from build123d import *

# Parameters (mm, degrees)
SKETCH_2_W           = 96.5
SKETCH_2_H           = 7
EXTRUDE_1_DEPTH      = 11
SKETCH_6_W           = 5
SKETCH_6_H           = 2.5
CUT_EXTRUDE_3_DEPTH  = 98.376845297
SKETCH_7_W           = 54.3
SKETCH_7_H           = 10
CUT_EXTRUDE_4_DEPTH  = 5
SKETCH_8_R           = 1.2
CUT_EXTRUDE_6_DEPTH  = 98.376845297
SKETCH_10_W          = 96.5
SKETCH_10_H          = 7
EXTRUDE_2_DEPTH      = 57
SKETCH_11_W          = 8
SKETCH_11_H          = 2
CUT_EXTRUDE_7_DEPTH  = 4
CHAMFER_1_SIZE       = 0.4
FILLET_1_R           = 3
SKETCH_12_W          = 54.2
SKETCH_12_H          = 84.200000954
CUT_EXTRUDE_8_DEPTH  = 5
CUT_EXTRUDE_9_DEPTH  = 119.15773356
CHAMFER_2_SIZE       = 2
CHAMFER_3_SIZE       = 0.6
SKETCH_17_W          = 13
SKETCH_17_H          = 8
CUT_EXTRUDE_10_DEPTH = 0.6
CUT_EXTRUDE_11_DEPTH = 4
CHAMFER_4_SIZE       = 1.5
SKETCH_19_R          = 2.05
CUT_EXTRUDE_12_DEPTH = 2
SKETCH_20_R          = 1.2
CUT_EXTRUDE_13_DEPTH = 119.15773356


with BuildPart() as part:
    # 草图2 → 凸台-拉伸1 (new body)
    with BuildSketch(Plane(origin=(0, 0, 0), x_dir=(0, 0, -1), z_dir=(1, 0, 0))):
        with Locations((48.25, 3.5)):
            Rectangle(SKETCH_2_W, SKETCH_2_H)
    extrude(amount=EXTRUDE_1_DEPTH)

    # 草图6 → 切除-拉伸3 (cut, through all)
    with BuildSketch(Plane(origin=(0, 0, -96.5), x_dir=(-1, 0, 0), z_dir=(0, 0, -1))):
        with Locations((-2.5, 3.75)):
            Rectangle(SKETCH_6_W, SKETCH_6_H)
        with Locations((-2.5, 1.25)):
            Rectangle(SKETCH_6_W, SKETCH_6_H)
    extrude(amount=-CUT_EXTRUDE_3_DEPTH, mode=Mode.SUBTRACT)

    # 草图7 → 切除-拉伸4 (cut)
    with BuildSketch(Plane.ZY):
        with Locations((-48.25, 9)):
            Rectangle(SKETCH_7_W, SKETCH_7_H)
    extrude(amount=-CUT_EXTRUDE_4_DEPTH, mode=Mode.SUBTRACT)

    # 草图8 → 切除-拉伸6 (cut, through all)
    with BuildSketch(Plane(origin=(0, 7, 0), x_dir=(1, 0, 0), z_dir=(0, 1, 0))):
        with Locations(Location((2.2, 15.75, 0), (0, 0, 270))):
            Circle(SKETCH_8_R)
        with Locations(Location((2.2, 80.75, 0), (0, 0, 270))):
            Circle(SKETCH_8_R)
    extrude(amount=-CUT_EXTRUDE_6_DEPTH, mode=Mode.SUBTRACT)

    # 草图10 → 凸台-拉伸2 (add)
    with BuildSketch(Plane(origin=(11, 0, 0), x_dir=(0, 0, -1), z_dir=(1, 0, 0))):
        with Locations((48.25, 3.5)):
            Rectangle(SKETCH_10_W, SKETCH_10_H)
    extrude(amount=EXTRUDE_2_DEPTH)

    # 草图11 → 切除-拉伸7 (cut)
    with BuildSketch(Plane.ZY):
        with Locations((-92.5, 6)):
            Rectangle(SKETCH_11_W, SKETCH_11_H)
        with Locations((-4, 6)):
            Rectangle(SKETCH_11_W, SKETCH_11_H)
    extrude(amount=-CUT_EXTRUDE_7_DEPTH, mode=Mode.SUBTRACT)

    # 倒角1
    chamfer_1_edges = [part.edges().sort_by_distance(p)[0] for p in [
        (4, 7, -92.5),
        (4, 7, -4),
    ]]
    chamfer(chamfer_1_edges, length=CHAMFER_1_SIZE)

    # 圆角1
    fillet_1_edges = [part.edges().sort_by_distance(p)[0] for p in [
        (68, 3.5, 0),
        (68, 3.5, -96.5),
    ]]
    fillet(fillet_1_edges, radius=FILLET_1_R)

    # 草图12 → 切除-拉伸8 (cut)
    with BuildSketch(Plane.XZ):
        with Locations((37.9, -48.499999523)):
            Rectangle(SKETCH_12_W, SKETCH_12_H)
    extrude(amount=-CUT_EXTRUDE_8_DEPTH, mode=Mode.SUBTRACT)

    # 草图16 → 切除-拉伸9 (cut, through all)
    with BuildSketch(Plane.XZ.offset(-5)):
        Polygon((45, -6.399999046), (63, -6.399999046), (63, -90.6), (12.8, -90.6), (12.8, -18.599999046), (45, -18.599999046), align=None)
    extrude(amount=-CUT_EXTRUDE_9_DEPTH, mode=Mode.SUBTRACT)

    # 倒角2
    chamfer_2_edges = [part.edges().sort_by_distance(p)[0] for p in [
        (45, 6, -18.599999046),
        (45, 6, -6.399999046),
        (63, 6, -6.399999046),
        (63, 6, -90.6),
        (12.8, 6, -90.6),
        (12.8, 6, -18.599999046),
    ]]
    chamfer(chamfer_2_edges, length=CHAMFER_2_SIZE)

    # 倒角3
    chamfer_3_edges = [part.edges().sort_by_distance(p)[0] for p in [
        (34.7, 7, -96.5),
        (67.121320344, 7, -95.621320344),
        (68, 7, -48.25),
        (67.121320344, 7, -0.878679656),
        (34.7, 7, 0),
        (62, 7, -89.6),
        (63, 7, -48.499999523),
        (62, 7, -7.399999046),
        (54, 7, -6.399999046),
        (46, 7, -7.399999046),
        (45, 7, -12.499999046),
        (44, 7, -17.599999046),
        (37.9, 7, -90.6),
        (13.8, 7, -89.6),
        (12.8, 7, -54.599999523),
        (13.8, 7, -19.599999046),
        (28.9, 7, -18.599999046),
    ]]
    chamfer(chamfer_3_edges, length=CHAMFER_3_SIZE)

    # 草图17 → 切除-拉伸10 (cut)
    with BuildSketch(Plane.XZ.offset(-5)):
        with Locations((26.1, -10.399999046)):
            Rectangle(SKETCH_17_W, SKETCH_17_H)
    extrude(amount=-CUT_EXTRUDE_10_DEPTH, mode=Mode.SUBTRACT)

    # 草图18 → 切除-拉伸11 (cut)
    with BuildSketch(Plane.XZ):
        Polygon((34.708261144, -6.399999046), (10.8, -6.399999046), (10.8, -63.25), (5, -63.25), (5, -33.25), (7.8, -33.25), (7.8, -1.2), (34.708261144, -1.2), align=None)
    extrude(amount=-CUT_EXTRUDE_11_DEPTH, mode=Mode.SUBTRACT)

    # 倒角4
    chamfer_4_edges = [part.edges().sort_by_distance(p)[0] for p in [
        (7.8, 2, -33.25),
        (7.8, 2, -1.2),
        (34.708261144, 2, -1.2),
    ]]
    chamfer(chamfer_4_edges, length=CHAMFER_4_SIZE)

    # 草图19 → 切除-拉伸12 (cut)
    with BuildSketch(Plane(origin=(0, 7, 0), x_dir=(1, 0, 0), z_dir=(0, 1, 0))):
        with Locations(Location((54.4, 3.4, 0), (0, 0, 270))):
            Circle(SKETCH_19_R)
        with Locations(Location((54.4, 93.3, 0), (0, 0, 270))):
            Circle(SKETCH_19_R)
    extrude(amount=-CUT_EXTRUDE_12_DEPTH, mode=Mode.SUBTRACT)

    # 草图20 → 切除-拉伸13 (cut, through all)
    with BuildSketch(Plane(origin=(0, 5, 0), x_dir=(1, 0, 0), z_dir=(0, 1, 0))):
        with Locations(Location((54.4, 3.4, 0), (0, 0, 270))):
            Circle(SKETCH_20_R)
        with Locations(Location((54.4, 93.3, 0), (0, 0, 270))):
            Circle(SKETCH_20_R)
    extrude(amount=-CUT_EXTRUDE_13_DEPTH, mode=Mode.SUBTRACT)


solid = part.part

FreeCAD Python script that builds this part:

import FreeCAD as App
import Part
import Sketcher
from FreeCAD import Vector
Q = App.Units.Quantity


def edges_at(feature, points):
    """Names of the edges that pass closest to the given points."""
    edges = feature.Shape.Edges
    near = lambda p: min(range(len(edges)), key=lambda i: edges[i].distToShape(Part.Vertex(*p))[0])
    return sorted({f"Edge{near(p) + 1}" for p in points})


def add_polygon(sketch, points):
    """Adds a closed chain of lines whose ends are joined by coincident constraints."""
    first, n = sketch.GeometryCount, len(points)
    for a, b in zip(points, points[1:] + points[:1]):
        sketch.addGeometry(Part.LineSegment(App.Vector(*a, 0), App.Vector(*b, 0)), False)
    for i in range(n):
        sketch.addConstraint(Sketcher.Constraint("Coincident", first + i, 2, first + (i + 1) % n, 1))

doc = App.newDocument("Part")
params = doc.addObject("Spreadsheet::Sheet", "Params")
for row, (alias, value) in enumerate([
    ("sketch1_width", "7 mm"),
    ("sketch1_height", "96.5 mm"),
    ("pad1_length", "11 mm"),
    ("sketch2_width", "5 mm"),
    ("sketch3_width", "10 mm"),
    ("sketch3_height", "54.3 mm"),
    ("pocket2_length", "5 mm"),
    ("sketch4_diameter", "2.4 mm"),
    ("sketch5_width", "7 mm"),
    ("sketch5_height", "96.5 mm"),
    ("pad2_length", "57 mm"),
    ("sketch6_width", "2 mm"),
    ("sketch6_height", "8 mm"),
    ("pocket4_length", "4 mm"),
    ("chamfer_size", "0.4 mm"),
    ("fillet_radius", "3 mm"),
    ("sketch7_width", "54.2 mm"),
    ("sketch7_height", "84.200001 mm"),
    ("pocket5_length", "5 mm"),
    ("sketch8_width", "18 mm"),
    ("sketch8_height", "72.000001 mm"),
    ("sketch8_width2", "32.2 mm"),
    ("sketch8_height2", "12.2 mm"),
    ("chamfer2_size", "2 mm"),
    ("chamfer3_size", "0.6 mm"),
    ("sketch9_width", "13 mm"),
    ("sketch9_height", "8 mm"),
    ("pocket7_length", "0.6 mm"),
    ("sketch10_height", "30 mm"),
    ("sketch10_width", "2.8 mm"),
    ("sketch10_width2", "5.8 mm"),
    ("sketch10_height2", "5.199999 mm"),
    ("sketch10_height3", "32.05 mm"),
    ("pocket8_length", "4 mm"),
    ("chamfer4_size", "1.5 mm"),
    ("sketch11_diameter", "4.1 mm"),
    ("pocket9_length", "2 mm"),
    ("sketch12_diameter", "2.4 mm"),
], start=1):
    params.set(f"A{row}", alias)
    params.set(f"B{row}", "=" + value)
    params.setAlias(f"B{row}", alias)

body = doc.addObject("PartDesign::Body", "Body")

sketch1 = doc.addObject("Sketcher::SketchObject", "Sketch")
body.addObject(sketch1)
sketch1.AttachmentSupport = (doc.YZ_Plane, [""])
sketch1.MapMode = "FlatFace"
add_polygon(sketch1, [(7, 0), (0, 0), (0, -96), (7, -96)])
sketch1.addConstraint(Sketcher.Constraint("Horizontal", 0))
sketch1.addConstraint(Sketcher.Constraint("Vertical", 1))
sketch1.addConstraint(Sketcher.Constraint("Horizontal", 2))
sketch1.addConstraint(Sketcher.Constraint("Vertical", 3))
sketch1.addConstraint(Sketcher.Constraint("Coincident", 0, 2, -1, 1))
sketch1.addConstraint(Sketcher.Constraint("DistanceX", 0, 2, 0, 1, Q("7 mm")))
sketch1.addConstraint(Sketcher.Constraint("DistanceY", 1, 2, 1, 1, Q("96.5 mm")))
sketch1.setExpression("Constraints[9]", "Params.sketch1_width")
sketch1.setExpression("Constraints[10]", "Params.sketch1_height")
pad1 = doc.addObject("PartDesign::Pad", "Pad")
body.addObject(pad1)
pad1.Profile = sketch1
pad1.setExpression("Length", "Params.pad1_length")

sketch2 = doc.addObject("Sketcher::SketchObject", "Sketch001")
body.addObject(sketch2)
sketch2.AttachmentSupport = (doc.XY_Plane, [""])
sketch2.MapMode = "FlatFace"
sketch2.AttachmentOffset = App.Placement(Vector(0, 0, -96.5), App.Rotation())
add_polygon(sketch2, [(5, 5), (5, 0), (0, 0), (0, 5)])
sketch2.addConstraint(Sketcher.Constraint("Vertical", 0))
sketch2.addConstraint(Sketcher.Constraint("Horizontal", 1))
sketch2.addConstraint(Sketcher.Constraint("Vertical", 2))
sketch2.addConstraint(Sketcher.Constraint("Horizontal", 3))
sketch2.addConstraint(Sketcher.Constraint("Coincident", 1, 2, -1, 1))
sketch2.addConstraint(Sketcher.Constraint("Equal", 3, 0))
sketch2.addConstraint(Sketcher.Constraint("DistanceX", 1, 2, 1, 1, Q("5 mm")))
sketch2.setExpression("Constraints[10]", "Params.sketch2_width")
pocket1 = doc.addObject("PartDesign::Pocket", "Pocket")
body.addObject(pocket1)
pocket1.Profile = sketch2
pocket1.Type = "ThroughAll"
pocket1.Reversed = True

sketch3 = doc.addObject("Sketcher::SketchObject", "Sketch002")
body.addObject(sketch3)
sketch3.AttachmentSupport = (doc.YZ_Plane, [""])
sketch3.MapMode = "FlatFace"
add_polygon(sketch3, [(14, -75), (4, -75), (4, -21), (14, -21)])
sketch3.addConstraint(Sketcher.Constraint("Horizontal", 0))
sketch3.addConstraint(Sketcher.Constraint("Vertical", 1))
sketch3.addConstraint(Sketcher.Constraint("Horizontal", 2))
sketch3.addConstraint(Sketcher.Constraint("Vertical", 3))
sketch3.addConstraint(Sketcher.Constraint("DistanceX", 0, 2, 0, 1, Q("10 mm")))
sketch3.addConstraint(Sketcher.Constraint("DistanceY", 1, 1, 1, 2, Q("54.3 mm")))
sketch3.addConstraint(Sketcher.Constraint("DistanceX", -1, 1, 0, 2, Q("4 mm")))
sketch3.addConstraint(Sketcher.Constraint("DistanceY", 0, 2, -1, 1, Q("75.4 mm")))
sketch3.setExpression("Constraints[8]", "Params.sketch3_width")
sketch3.setExpression("Constraints[9]", "Params.sketch3_height")
pocket2 = doc.addObject("PartDesign::Pocket", "Pocket001")
body.addObject(pocket2)
pocket2.Profile = sketch3
pocket2.setExpression("Length", "Params.pocket2_length")
pocket2.Reversed = True

sketch4 = doc.addObject("Sketcher::SketchObject", "Sketch003")
body.addObject(sketch4)
sketch4.AttachmentSupport = (doc.XZ_Plane, [""])
sketch4.MapMode = "FlatFace"
sketch4.AttachmentOffset = App.Placement(Vector(0, 0, -7), App.Rotation())
sketch4.addGeometry(Part.Circle(Vector(2.2, -15.8, 0), Vector(0, 0, 1), 1.2), False)
sketch4.addGeometry(Part.Circle(Vector(2.2, -80.8, 0), Vector(0, 0, 1), 1.2), False)
sketch4.addConstraint(Sketcher.Constraint("Equal", 0, 1))
sketch4.addConstraint(Sketcher.Constraint("Vertical", 0, 3, 1, 3))
sketch4.addConstraint(Sketcher.Constraint("Diameter", 0, Q("2.4 mm")))
sketch4.addConstraint(Sketcher.Constraint("DistanceY", 1, 3, 0, 3, Q("65 mm")))
sketch4.addConstraint(Sketcher.Constraint("DistanceX", -1, 1, 0, 3, Q("2.2 mm")))
sketch4.addConstraint(Sketcher.Constraint("DistanceY", 0, 3, -1, 1, Q("15.75 mm")))
sketch4.setExpression("Constraints[2]", "Params.sketch4_diameter")
pocket3 = doc.addObject("PartDesign::Pocket", "Pocket002")
body.addObject(pocket3)
pocket3.Profile = sketch4
pocket3.Type = "ThroughAll"
pocket3.Reversed = True

sketch5 = doc.addObject("Sketcher::SketchObject", "Sketch004")
body.addObject(sketch5)
sketch5.AttachmentSupport = (doc.YZ_Plane, [""])
sketch5.MapMode = "FlatFace"
sketch5.AttachmentOffset = App.Placement(Vector(0, 0, 11), App.Rotation())
add_polygon(sketch5, [(7, 0), (0, 0), (0, -96), (7, -96)])
sketch5.addConstraint(Sketcher.Constraint("Horizontal", 0))
sketch5.addConstraint(Sketcher.Constraint("Vertical", 1))
sketch5.addConstraint(Sketcher.Constraint("Horizontal", 2))
sketch5.addConstraint(Sketcher.Constraint("Vertical", 3))
sketch5.addConstraint(Sketcher.Constraint("Coincident", 0, 2, -1, 1))
sketch5.addConstraint(Sketcher.Constraint("DistanceX", 0, 2, 0, 1, Q("7 mm")))
sketch5.addConstraint(Sketcher.Constraint("DistanceY", 1, 2, 1, 1, Q("96.5 mm")))
sketch5.setExpression("Constraints[9]", "Params.sketch5_width")
sketch5.setExpression("Constraints[10]", "Params.sketch5_height")
pad2 = doc.addObject("PartDesign::Pad", "Pad001")
body.addObject(pad2)
pad2.Profile = sketch5
pad2.setExpression("Length", "Params.pad2_length")

sketch6 = doc.addObject("Sketcher::SketchObject", "Sketch005")
body.addObject(sketch6)
sketch6.AttachmentSupport = (doc.YZ_Plane, [""])
sketch6.MapMode = "FlatFace"
add_polygon(sketch6, [(7, -96.5), (5, -96.5), (5, -88.5), (7, -88.5)])
add_polygon(sketch6, [(7, -8), (5, -8), (5, 0), (7, 0)])
sketch6.addConstraint(Sketcher.Constraint("Horizontal", 0))
sketch6.addConstraint(Sketcher.Constraint("Vertical", 1))
sketch6.addConstraint(Sketcher.Constraint("Horizontal", 2))
sketch6.addConstraint(Sketcher.Constraint("Vertical", 3))
sketch6.addConstraint(Sketcher.Constraint("Horizontal", 4))
sketch6.addConstraint(Sketcher.Constraint("Vertical", 5))
sketch6.addConstraint(Sketcher.Constraint("Horizontal", 6))
sketch6.addConstraint(Sketcher.Constraint("Vertical", 7))
sketch6.addConstraint(Sketcher.Constraint("PointOnObject", 5, 2, -1))
sketch6.addConstraint(Sketcher.Constraint("Vertical", 1, 2, 4, 2))
sketch6.addConstraint(Sketcher.Constraint("Vertical", 3, 2, 6, 2))
sketch6.addConstraint(Sketcher.Constraint("Equal", 3, 5))
sketch6.addConstraint(Sketcher.Constraint("DistanceX", 0, 2, 0, 1, Q("2 mm")))
sketch6.addConstraint(Sketcher.Constraint("DistanceY", 1, 1, 1, 2, Q("8 mm")))
sketch6.addConstraint(Sketcher.Constraint("DistanceX", -1, 1, 0, 2, Q("5 mm")))
sketch6.addConstraint(Sketcher.Constraint("DistanceY", 0, 2, -1, 1, Q("96.5 mm")))
sketch6.setExpression("Constraints[20]", "Params.sketch6_width")
sketch6.setExpression("Constraints[21]", "Params.sketch6_height")
pocket4 = doc.addObject("PartDesign::Pocket", "Pocket003")
body.addObject(pocket4)
pocket4.Profile = sketch6
pocket4.setExpression("Length", "Params.pocket4_length")
pocket4.Reversed = True
doc.recompute()

chamfer = doc.addObject("PartDesign::Chamfer", "Chamfer")
body.addObject(chamfer)
chamfer.Base = (pocket4, edges_at(pocket4, [(4, 7, -92.5), (4, 7, -4)]))
chamfer.setExpression("Size", "Params.chamfer_size")
doc.recompute()

fillet = doc.addObject("PartDesign::Fillet", "Fillet")
body.addObject(fillet)
fillet.Base = (chamfer, edges_at(chamfer, [(68, 3.5, 0), (68, 3.5, -96.5)]))
fillet.setExpression("Radius", "Params.fillet_radius")

sketch7 = doc.addObject("Sketcher::SketchObject", "Sketch006")
body.addObject(sketch7)
sketch7.AttachmentSupport = (doc.XZ_Plane, [""])
sketch7.MapMode = "FlatFace"
add_polygon(sketch7, [(11, -6), (11, -91), (65, -91), (65, -6)])
sketch7.addConstraint(Sketcher.Constraint("Vertical", 0))
sketch7.addConstraint(Sketcher.Constraint("Horizontal", 1))
sketch7.addConstraint(Sketcher.Constraint("Vertical", 2))
sketch7.addConstraint(Sketcher.Constraint("Horizontal", 3))
sketch7.addConstraint(Sketcher.Constraint("DistanceX", 1, 1, 1, 2, Q("54.2 mm")))
sketch7.addConstraint(Sketcher.Constraint("DistanceY", 0, 2, 0, 1, Q("84.200001 mm")))
sketch7.addConstraint(Sketcher.Constraint("DistanceX", -1, 1, 1, 2, Q("65 mm")))
sketch7.addConstraint(Sketcher.Constraint("DistanceY", 0, 2, -1, 1, Q("90.6 mm")))
sketch7.setExpression("Constraints[8]", "Params.sketch7_width")
sketch7.setExpression("Constraints[9]", "Params.sketch7_height")
pocket5 = doc.addObject("PartDesign::Pocket", "Pocket004")
body.addObject(pocket5)
pocket5.Profile = sketch7
pocket5.setExpression("Length", "Params.pocket5_length")

sketch8 = doc.addObject("Sketcher::SketchObject", "Sketch007")
body.addObject(sketch8)
sketch8.AttachmentSupport = (doc.XZ_Plane, [""])
sketch8.MapMode = "FlatFace"
sketch8.AttachmentOffset = App.Placement(Vector(0, 0, -5), App.Rotation())
add_polygon(sketch8, [(63, -6), (45, -6), (45, -19), (13, -19), (13, -91), (63, -91)])
sketch8.addConstraint(Sketcher.Constraint("Horizontal", 0))
sketch8.addConstraint(Sketcher.Constraint("Vertical", 1))
sketch8.addConstraint(Sketcher.Constraint("Horizontal", 2))
sketch8.addConstraint(Sketcher.Constraint("Vertical", 3))
sketch8.addConstraint(Sketcher.Constraint("Horizontal", 4))
sketch8.addConstraint(Sketcher.Constraint("Vertical", 5))
sketch8.addConstraint(Sketcher.Constraint("DistanceX", 0, 2, 0, 1, Q("18 mm")))
sketch8.addConstraint(Sketcher.Constraint("DistanceY", 3, 2, 3, 1, Q("72.000001 mm")))
sketch8.addConstraint(Sketcher.Constraint("DistanceX", 2, 2, 2, 1, Q("32.2 mm")))
sketch8.addConstraint(Sketcher.Constraint("DistanceY", 1, 2, 1, 1, Q("12.2 mm")))
sketch8.addConstraint(Sketcher.Constraint("DistanceX", -1, 1, 0, 2, Q("45 mm")))
sketch8.addConstraint(Sketcher.Constraint("DistanceY", 0, 2, -1, 1, Q("6.399999 mm")))
sketch8.setExpression("Constraints[12]", "Params.sketch8_width")
sketch8.setExpression("Constraints[13]", "Params.sketch8_height")
sketch8.setExpression("Constraints[14]", "Params.sketch8_width2")
sketch8.setExpression("Constraints[15]", "Params.sketch8_height2")
pocket6 = doc.addObject("PartDesign::Pocket", "Pocket005")
body.addObject(pocket6)
pocket6.Profile = sketch8
pocket6.Type = "ThroughAll"
doc.recompute()

chamfer2 = doc.addObject("PartDesign::Chamfer", "Chamfer001")
body.addObject(chamfer2)
chamfer2.Base = (pocket6, edges_at(pocket6, [
    (45, 6, -18.6),
    (45, 6, -6.4),
    (63, 6, -6.4),
    (63, 6, -90.6),
    (12.8, 6, -90.6),
    (12.8, 6, -18.6),
]))
chamfer2.setExpression("Size", "Params.chamfer2_size")
doc.recompute()

chamfer3 = doc.addObject("PartDesign::Chamfer", "Chamfer002")
body.addObject(chamfer3)
chamfer3.Base = (chamfer2, edges_at(chamfer2, [
    (34.7, 7, -96.5),
    (67.121, 7, -95.621),
    (68, 7, -48.25),
    (67.121, 7, -0.879),
    (34.7, 7, 0),
    (62, 7, -89.6),
    (63, 7, -48.5),
    (62, 7, -7.4),
    (54, 7, -6.4),
    (46, 7, -7.4),
    (45, 7, -12.5),
    (44, 7, -17.6),
    (37.9, 7, -90.6),
    (13.8, 7, -89.6),
    (12.8, 7, -54.6),
    (13.8, 7, -19.6),
    (28.9, 7, -18.6),
]))
chamfer3.setExpression("Size", "Params.chamfer3_size")

sketch9 = doc.addObject("Sketcher::SketchObject", "Sketch008")
body.addObject(sketch9)
sketch9.AttachmentSupport = (doc.XZ_Plane, [""])
sketch9.MapMode = "FlatFace"
sketch9.AttachmentOffset = App.Placement(Vector(0, 0, -5), App.Rotation())
add_polygon(sketch9, [(20, -6), (20, -14), (33, -14), (33, -6)])
sketch9.addConstraint(Sketcher.Constraint("Vertical", 0))
sketch9.addConstraint(Sketcher.Constraint("Horizontal", 1))
sketch9.addConstraint(Sketcher.Constraint("Vertical", 2))
sketch9.addConstraint(Sketcher.Constraint("Horizontal", 3))
sketch9.addConstraint(Sketcher.Constraint("DistanceX", 1, 1, 1, 2, Q("13 mm")))
sketch9.addConstraint(Sketcher.Constraint("DistanceY", 0, 2, 0, 1, Q("8 mm")))
sketch9.addConstraint(Sketcher.Constraint("DistanceX", -1, 1, 0, 2, Q("19.6 mm")))
sketch9.addConstraint(Sketcher.Constraint("DistanceY", 0, 2, -1, 1, Q("14.399999 mm")))
sketch9.setExpression("Constraints[8]", "Params.sketch9_width")
sketch9.setExpression("Constraints[9]", "Params.sketch9_height")
pocket7 = doc.addObject("PartDesign::Pocket", "Pocket006")
body.addObject(pocket7)
pocket7.Profile = sketch9
pocket7.setExpression("Length", "Params.pocket7_length")

sketch10 = doc.addObject("Sketcher::SketchObject", "Sketch009")
body.addObject(sketch10)
sketch10.AttachmentSupport = (doc.XZ_Plane, [""])
sketch10.MapMode = "FlatFace"
add_polygon(sketch10, [(10.8, -6.4), (34.7, -6.4), (34.7, -1.2), (7.8, -1.2), (7.8, -33.2), (5, -33.2), (5, -63.2), (10.8, -63.2)])
sketch10.addConstraint(Sketcher.Constraint("Horizontal", 0))
sketch10.addConstraint(Sketcher.Constraint("Vertical", 1))
sketch10.addConstraint(Sketcher.Constraint("Horizontal", 2))
sketch10.addConstraint(Sketcher.Constraint("Vertical", 3))
sketch10.addConstraint(Sketcher.Constraint("Horizontal", 4))
sketch10.addConstraint(Sketcher.Constraint("Vertical", 5))
sketch10.addConstraint(Sketcher.Constraint("Horizontal", 6))
sketch10.addConstraint(Sketcher.Constraint("Vertical", 7))
sketch10.addConstraint(Sketcher.Constraint("DistanceY", 5, 2, 5, 1, Q("30 mm")))
sketch10.addConstraint(Sketcher.Constraint("DistanceX", 4, 2, 4, 1, Q("2.8 mm")))
sketch10.addConstraint(Sketcher.Constraint("DistanceX", 6, 1, 6, 2, Q("5.8 mm")))
sketch10.addConstraint(Sketcher.Constraint("DistanceY", 1, 1, 1, 2, Q("5.199999 mm")))
sketch10.addConstraint(Sketcher.Constraint("DistanceX", -1, 1, 4, 2, Q("5 mm")))
sketch10.addConstraint(Sketcher.Constraint("DistanceY", 3, 2, 3, 1, Q("32.05 mm")))
sketch10.addConstraint(Sketcher.Constraint("DistanceY", 0, 2, -1, 1, Q("6.399999 mm")))
sketch10.addConstraint(Sketcher.Constraint("DistanceX", 0, 1, 0, 2, Q("23.908261 mm")))
sketch10.setExpression("Constraints[16]", "Params.sketch10_height")
sketch10.setExpression("Constraints[17]", "Params.sketch10_width")
sketch10.setExpression("Constraints[18]", "Params.sketch10_width2")
sketch10.setExpression("Constraints[19]", "Params.sketch10_height2")
sketch10.setExpression("Constraints[21]", "Params.sketch10_height3")
pocket8 = doc.addObject("PartDesign::Pocket", "Pocket007")
body.addObject(pocket8)
pocket8.Profile = sketch10
pocket8.setExpression("Length", "Params.pocket8_length")
doc.recompute()

chamfer4 = doc.addObject("PartDesign::Chamfer", "Chamfer003")
body.addObject(chamfer4)
chamfer4.Base = (pocket8, edges_at(pocket8, [(7.8, 2, -33.25), (7.8, 2, -1.2), (34.708, 2, -1.2)]))
chamfer4.setExpression("Size", "Params.chamfer4_size")

sketch11 = doc.addObject("Sketcher::SketchObject", "Sketch010")
body.addObject(sketch11)
sketch11.AttachmentSupport = (doc.XZ_Plane, [""])
sketch11.MapMode = "FlatFace"
sketch11.AttachmentOffset = App.Placement(Vector(0, 0, -7), App.Rotation())
sketch11.addGeometry(Part.Circle(Vector(54.4, -3.4, 0), Vector(0, 0, 1), 2), False)
sketch11.addGeometry(Part.Circle(Vector(54.4, -93.3, 0), Vector(0, 0, 1), 2), False)
sketch11.addConstraint(Sketcher.Constraint("Equal", 0, 1))
sketch11.addConstraint(Sketcher.Constraint("Vertical", 0, 3, 1, 3))
sketch11.addConstraint(Sketcher.Constraint("Diameter", 0, Q("4.1 mm")))
sketch11.addConstraint(Sketcher.Constraint("DistanceX", -1, 1, 0, 3, Q("54.4 mm")))
sketch11.addConstraint(Sketcher.Constraint("DistanceY", 0, 3, -1, 1, Q("3.4 mm")))
sketch11.addConstraint(Sketcher.Constraint("DistanceY", 1, 3, -1, 1, Q("93.3 mm")))
sketch11.setExpression("Constraints[2]", "Params.sketch11_diameter")
pocket9 = doc.addObject("PartDesign::Pocket", "Pocket008")
body.addObject(pocket9)
pocket9.Profile = sketch11
pocket9.setExpression("Length", "Params.pocket9_length")
pocket9.Reversed = True

sketch12 = doc.addObject("Sketcher::SketchObject", "Sketch011")
body.addObject(sketch12)
sketch12.AttachmentSupport = (doc.XZ_Plane, [""])
sketch12.MapMode = "FlatFace"
sketch12.AttachmentOffset = App.Placement(Vector(0, 0, -5), App.Rotation())
sketch12.addGeometry(Part.Circle(Vector(54.4, -3.4, 0), Vector(0, 0, 1), 1.2), False)
sketch12.addGeometry(Part.Circle(Vector(54.4, -93.3, 0), Vector(0, 0, 1), 1.2), False)
sketch12.addConstraint(Sketcher.Constraint("Equal", 0, 1))
sketch12.addConstraint(Sketcher.Constraint("Vertical", 0, 3, 1, 3))
sketch12.addConstraint(Sketcher.Constraint("Diameter", 0, Q("2.4 mm")))
sketch12.addConstraint(Sketcher.Constraint("DistanceX", -1, 1, 0, 3, Q("54.4 mm")))
sketch12.addConstraint(Sketcher.Constraint("DistanceY", 0, 3, -1, 1, Q("3.4 mm")))
sketch12.addConstraint(Sketcher.Constraint("DistanceY", 1, 3, -1, 1, Q("93.3 mm")))
sketch12.setExpression("Constraints[2]", "Params.sketch12_diameter")
pocket10 = doc.addObject("PartDesign::Pocket", "Pocket009")
body.addObject(pocket10)
pocket10.Profile = sketch12
pocket10.Type = "ThroughAll"
pocket10.Reversed = True

doc.recompute()
